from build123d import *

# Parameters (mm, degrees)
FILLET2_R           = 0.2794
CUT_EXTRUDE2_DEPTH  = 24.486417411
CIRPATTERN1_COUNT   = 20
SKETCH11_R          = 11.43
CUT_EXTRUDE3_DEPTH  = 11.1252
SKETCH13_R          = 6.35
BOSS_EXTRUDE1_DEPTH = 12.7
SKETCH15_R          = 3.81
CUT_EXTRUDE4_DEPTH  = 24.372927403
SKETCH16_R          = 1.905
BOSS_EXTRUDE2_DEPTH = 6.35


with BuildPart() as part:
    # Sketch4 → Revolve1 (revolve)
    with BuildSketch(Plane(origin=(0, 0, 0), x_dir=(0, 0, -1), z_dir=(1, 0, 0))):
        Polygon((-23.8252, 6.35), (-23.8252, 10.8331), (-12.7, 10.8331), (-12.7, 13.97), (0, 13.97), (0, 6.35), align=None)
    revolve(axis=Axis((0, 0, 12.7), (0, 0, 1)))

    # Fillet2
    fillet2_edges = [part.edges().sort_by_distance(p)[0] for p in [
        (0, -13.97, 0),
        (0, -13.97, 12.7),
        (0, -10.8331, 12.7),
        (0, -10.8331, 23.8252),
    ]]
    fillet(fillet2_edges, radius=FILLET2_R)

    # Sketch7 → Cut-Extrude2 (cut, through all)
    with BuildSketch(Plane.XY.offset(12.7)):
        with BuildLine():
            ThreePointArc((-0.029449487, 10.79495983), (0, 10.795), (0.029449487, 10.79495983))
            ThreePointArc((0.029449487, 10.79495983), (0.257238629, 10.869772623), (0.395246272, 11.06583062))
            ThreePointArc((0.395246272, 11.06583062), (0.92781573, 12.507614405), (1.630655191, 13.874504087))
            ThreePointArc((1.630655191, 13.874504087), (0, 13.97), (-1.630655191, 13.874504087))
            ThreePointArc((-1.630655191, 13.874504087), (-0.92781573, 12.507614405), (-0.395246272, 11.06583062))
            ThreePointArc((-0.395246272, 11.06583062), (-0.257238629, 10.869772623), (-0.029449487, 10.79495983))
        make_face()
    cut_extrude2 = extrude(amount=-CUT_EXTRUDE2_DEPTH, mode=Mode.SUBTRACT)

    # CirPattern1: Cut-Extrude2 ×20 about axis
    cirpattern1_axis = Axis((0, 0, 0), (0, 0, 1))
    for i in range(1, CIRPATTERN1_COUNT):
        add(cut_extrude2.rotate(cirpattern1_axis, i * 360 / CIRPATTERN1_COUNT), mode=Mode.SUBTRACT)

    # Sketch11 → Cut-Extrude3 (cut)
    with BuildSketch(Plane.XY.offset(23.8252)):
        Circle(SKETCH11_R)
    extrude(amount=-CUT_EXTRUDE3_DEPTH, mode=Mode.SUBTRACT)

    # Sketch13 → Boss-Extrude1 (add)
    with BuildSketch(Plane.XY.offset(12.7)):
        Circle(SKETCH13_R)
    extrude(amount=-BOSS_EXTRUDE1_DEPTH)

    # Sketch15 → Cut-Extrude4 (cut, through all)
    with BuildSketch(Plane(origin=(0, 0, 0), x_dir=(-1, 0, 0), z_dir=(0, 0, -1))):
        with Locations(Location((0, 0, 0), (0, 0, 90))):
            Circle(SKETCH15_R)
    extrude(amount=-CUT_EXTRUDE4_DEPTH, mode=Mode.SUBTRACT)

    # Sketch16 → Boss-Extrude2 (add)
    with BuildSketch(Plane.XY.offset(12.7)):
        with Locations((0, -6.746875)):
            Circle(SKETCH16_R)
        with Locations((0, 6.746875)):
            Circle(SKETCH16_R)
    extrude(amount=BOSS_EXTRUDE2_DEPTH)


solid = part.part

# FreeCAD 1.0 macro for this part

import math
import FreeCAD as App
import Part
import Sketcher
from FreeCAD import Vector
Q = App.Units.Quantity


def edges_at(feature, points):
    """Names of the edges that pass closest to the given points."""
    edges = feature.Shape.Edges
    near = lambda p: min(range(len(edges)), key=lambda i: edges[i].distToShape(Part.Vertex(*p))[0])
    return sorted({f"Edge{near(p) + 1}" for p in points})

doc = App.newDocument("Part")
body = doc.addObject("PartDesign::Body", "Body")

sketch1 = body.newObject("Sketcher::SketchObject", "Sketch")
sketch1.AttachmentSupport = (doc.getObject("YZ_Plane"), [""])
sketch1.MapMode = "FlatFace"
sketch1.addGeometry(Part.LineSegment(Vector(10.8331, 23.8252, 0), Vector(6.35, 23.8252, 0)), False)
sketch1.addGeometry(Part.LineSegment(Vector(6.35, 23.8252, 0), Vector(6.35, 0, 0)), False)
sketch1.addGeometry(Part.LineSegment(Vector(6.35, 0, 0), Vector(13.97, 0, 0)), False)
sketch1.addGeometry(Part.LineSegment(Vector(13.97, 0, 0), Vector(13.97, 12.7, 0)), False)
sketch1.addGeometry(Part.LineSegment(Vector(13.97, 12.7, 0), Vector(10.8331, 12.7, 0)), False)
sketch1.addGeometry(Part.LineSegment(Vector(10.8331, 12.7, 0), Vector(10.8331, 23.8252, 0)), False)
sketch1.addConstraint(Sketcher.Constraint("Coincident", 0, 2, 1, 1))
sketch1.addConstraint(Sketcher.Constraint("Coincident", 1, 2, 2, 1))
sketch1.addConstraint(Sketcher.Constraint("Coincident", 2, 2, 3, 1))
sketch1.addConstraint(Sketcher.Constraint("Coincident", 3, 2, 4, 1))
sketch1.addConstraint(Sketcher.Constraint("Coincident", 4, 2, 5, 1))
sketch1.addConstraint(Sketcher.Constraint("Coincident", 5, 2, 0, 1))
sketch1.addConstraint(Sketcher.Constraint("Horizontal", 0))
sketch1.addConstraint(Sketcher.Constraint("Vertical", 1))
sketch1.addConstraint(Sketcher.Constraint("Horizontal", 2))
sketch1.addConstraint(Sketcher.Constraint("Vertical", 3))
sketch1.addConstraint(Sketcher.Constraint("Horizontal", 4))
sketch1.addConstraint(Sketcher.Constraint("Vertical", 5))
sketch1.addConstraint(Sketcher.Constraint("PointOnObject", 1, 2, -1))
sketch1.addConstraint(Sketcher.Constraint("DistanceX", 2, 1, 2, 2, Q("0.3 in")))
sketch1.addConstraint(Sketcher.Constraint("DistanceY", 3, 1, 3, 2, Q("0.5 in")))
sketch1.addConstraint(Sketcher.Constraint("DistanceY", 1, 2, 1, 1, Q("0.938 in")))
sketch1.addConstraint(Sketcher.Constraint("DistanceX", -1, 1, 0, 2, Q("0.25 in")))
sketch1.addConstraint(Sketcher.Constraint("DistanceX", 0, 2, 0, 1, Q("0.1765 in")))
revolution = body.newObject("PartDesign::Revolution", "Revolution")
revolution.Profile = sketch1
revolution.ReferenceAxis = (sketch1, ["V_Axis"])
revolution.Angle = 360
doc.recompute()

fillet = body.newObject("PartDesign::Fillet", "Fillet")
fillet.Base = (revolution, edges_at(revolution, [
    (0, -13.97, 0),
    (0, -13.97, 12.7),
    (0, -10.833, 12.7),
    (0, -10.833, 23.825),
]))
fillet.Radius = Q("0.011 in")

sketch2 = body.newObject("Sketcher::SketchObject", "Sketch001")
sketch2.AttachmentSupport = (doc.getObject("XY_Plane"), [""])
sketch2.MapMode = "FlatFace"
sketch2.AttachmentOffset = App.Placement(Vector(0, 0, 0.5 * 25.4), App.Rotation())
sketch2.addGeometry(Part.ArcOfCircle(Part.Circle(Vector(0, -0.000045, 0), Vector(0, 0, 1), 10.795045), math.radians(89.843694), math.radians(90.156306)), False)
sketch2.addGeometry(Part.ArcOfCircle(Part.Circle(Vector(0.030489, 11.175986, 0), Vector(0, 0, 1), 0.381028), math.radians(-90.156307), math.radians(-16.804147)), False)
sketch2.addGeometry(Part.ArcOfCircle(Part.Circle(Vector(12.552938, 7.394247, 0), Vector(0, 0, 1), 12.7), math.radians(149.319085), math.radians(163.195853)), False)
sketch2.addGeometry(Part.ArcOfCircle(Part.Circle(Vector(0, 0, 0), Vector(0, 0, 1), 13.97), math.radians(83.296841), math.radians(96.703159)), False)
sketch2.addGeometry(Part.ArcOfCircle(Part.Circle(Vector(-12.552938, 7.394247, 0), Vector(0, 0, 1), 12.7), math.radians(16.804147), math.radians(30.680915)), False)
sketch2.addGeometry(Part.ArcOfCircle(Part.Circle(Vector(-0.030489, 11.175986, 0), Vector(0, 0, 1), 0.381028), math.radians(-163.195853), math.radians(-89.843693)), False)
sketch2.addConstraint(Sketcher.Constraint("Tangent", 0, 1, 1, 1))
sketch2.addConstraint(Sketcher.Constraint("Tangent", 1, 2, 2, 2))
sketch2.addConstraint(Sketcher.Constraint("Coincident", 2, 1, 3, 1))
sketch2.addConstraint(Sketcher.Constraint("Coincident", 3, 2, 4, 2))
sketch2.addConstraint(Sketcher.Constraint("Tangent", 4, 1, 5, 1))
sketch2.addConstraint(Sketcher.Constraint("Tangent", 5, 2, 0, 2))
sketch2.addConstraint(Sketcher.Constraint("Coincident", 3, 3, -1, 1))
sketch2.addConstraint(Sketcher.Constraint("Equal", 2, 4))
sketch2.addConstraint(Sketcher.Constraint("Equal", 1, 5))
sketch2.addConstraint(Sketcher.Constraint("Symmetric", 2, 3, 4, 3, -2))
sketch2.addConstraint(Sketcher.Constraint("PointOnObject", 0, 3, -2))
sketch2.addConstraint(Sketcher.Constraint("Radius", 2, Q("0.5 in")))
sketch2.addConstraint(Sketcher.Constraint("Radius", 3, Q("0.55 in")))
sketch2.addConstraint(Sketcher.Constraint("DistanceY", 0, 3, 0, 1, Q("0.4250002 in")))
sketch2.addConstraint(Sketcher.Constraint("Radius", 1, 0.381028))
sketch2.addConstraint(Sketcher.Constraint("DistanceX", 3, 2, 1, 2, 2.025901))
sketch2.addConstraint(Sketcher.Constraint("DistanceX", 5, 2, 0, 1, 0.058899))
sketch2.addConstraint(Sketcher.Constraint("DistanceX", -1, 1, 2, 3, 12.552938))
pocket1 = body.newObject("PartDesign::Pocket", "Pocket")
pocket1.Profile = sketch2
pocket1.Type = "ThroughAll"
doc.recompute()

polarpattern = body.newObject("PartDesign::PolarPattern", "PolarPattern")
polarpattern.Originals = [pocket1]
polarpattern.Axis = (doc.getObject("Z_Axis"), [""])
polarpattern.Angle = 360
polarpattern.Occurrences = 20
body.Tip = polarpattern

sketch3 = body.newObject("Sketcher::SketchObject", "Sketch002")
sketch3.AttachmentSupport = (doc.getObject("XY_Plane"), [""])
sketch3.MapMode = "FlatFace"
sketch3.AttachmentOffset = App.Placement(Vector(0, 0, 0.938 * 25.4), App.Rotation())
sketch3.addGeometry(Part.Circle(Vector(0, 0, 0), Vector(0, 0, 1), 11.43), False)
sketch3.addConstraint(Sketcher.Constraint("Coincident", 0, 3, -1, 1))
sketch3.addConstraint(Sketcher.Constraint("Diameter", 0, Q("0.9 in")))
pocket2 = body.newObject("PartDesign::Pocket", "Pocket001")
pocket2.Profile = sketch3
pocket2.Length = Q("0.438 in")

sketch4 = body.newObject("Sketcher::SketchObject", "Sketch003")
sketch4.AttachmentSupport = (doc.getObject("XY_Plane"), [""])
sketch4.MapMode = "FlatFace"
sketch4.AttachmentOffset = App.Placement(Vector(0, 0, 0.5 * 25.4), App.Rotation())
sketch4.addGeometry(Part.Circle(Vector(0, 0, 0), Vector(0, 0, 1), 6.35), False)
sketch4.addConstraint(Sketcher.Constraint("Coincident", 0, 3, -1, 1))
sketch4.addConstraint(Sketcher.Constraint("Diameter", 0, Q("0.5 in")))
pad1 = body.newObject("PartDesign::Pad", "Pad")
pad1.Profile = sketch4
pad1.Length = Q("0.5 in")
pad1.Reversed = True

sketch5 = body.newObject("Sketcher::SketchObject", "Sketch004")
sketch5.AttachmentSupport = (doc.getObject("XY_Plane"), [""])
sketch5.MapMode = "FlatFace"
sketch5.addGeometry(Part.Circle(Vector(0, 0, 0), Vector(0, 0, 1), 3.81), False)
sketch5.addConstraint(Sketcher.Constraint("Coincident", 0, 3, -1, 1))
sketch5.addConstraint(Sketcher.Constraint("Diameter", 0, Q("0.3 in")))
pocket3 = body.newObject("PartDesign::Pocket", "Pocket002")
pocket3.Profile = sketch5
pocket3.Type = "ThroughAll"
pocket3.Reversed = True

sketch6 = body.newObject("Sketcher::SketchObject", "Sketch005")
sketch6.AttachmentSupport = (doc.getObject("XY_Plane"), [""])
sketch6.MapMode = "FlatFace"
sketch6.AttachmentOffset = App.Placement(Vector(0, 0, 0.5 * 25.4), App.Rotation())
sketch6.addGeometry(Part.Circle(Vector(0, -6.746875, 0), Vector(0, 0, 1), 1.905), False)
sketch6.addGeometry(Part.Circle(Vector(0, 6.746875, 0), Vector(0, 0, 1), 1.905), False)
sketch6.addConstraint(Sketcher.Constraint("Equal", 0, 1))
sketch6.addConstraint(Sketcher.Constraint("Symmetric", 0, 3, 1, 3, -1, 1))
sketch6.addConstraint(Sketcher.Constraint("PointOnObject", 0, 3, -2))
sketch6.addConstraint(Sketcher.Constraint("Diameter", 0, Q("0.15 in")))
sketch6.addConstraint(Sketcher.Constraint("DistanceY", 0, 3, -1, 1, Q("0.265625 in")))
pad2 = body.newObject("PartDesign::Pad", "Pad001")
pad2.Profile = sketch6
pad2.Length = Q("0.25 in")

doc.recompute()
